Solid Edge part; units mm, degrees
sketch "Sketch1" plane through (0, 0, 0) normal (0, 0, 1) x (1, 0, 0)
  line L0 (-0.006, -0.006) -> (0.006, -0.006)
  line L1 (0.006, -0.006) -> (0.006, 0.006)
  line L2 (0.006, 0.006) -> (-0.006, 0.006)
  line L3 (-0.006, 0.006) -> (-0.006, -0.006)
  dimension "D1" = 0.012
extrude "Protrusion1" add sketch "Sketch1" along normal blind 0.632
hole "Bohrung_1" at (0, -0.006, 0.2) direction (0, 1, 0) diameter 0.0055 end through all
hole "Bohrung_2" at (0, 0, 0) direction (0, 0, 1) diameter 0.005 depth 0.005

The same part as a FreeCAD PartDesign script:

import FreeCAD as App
import Part
import Sketcher

doc = App.newDocument("Part")
body = doc.addObject("PartDesign::Body", "Body")

# Sketch on XY plane
sketch1 = body.newObject("Sketcher::SketchObject", "Sketch")
sketch1.AttachmentSupport = (doc.getObject("XY_Plane"), [""])
sketch1.MapMode = "FlatFace"
sketch1.addGeometry(Part.LineSegment(App.Vector(-0.006, 0.006, 0), App.Vector(-0.006, -0.006, 0)), False)
sketch1.addGeometry(Part.LineSegment(App.Vector(-0.006, -0.006, 0), App.Vector(0.006, -0.006, 0)), False)
sketch1.addGeometry(Part.LineSegment(App.Vector(0.006, -0.006, 0), App.Vector(0.006, 0.006, 0)), False)
sketch1.addGeometry(Part.LineSegment(App.Vector(0.006, 0.006, 0), App.Vector(-0.006, 0.006, 0)), False)
sketch1.addConstraint(Sketcher.Constraint("Coincident", 0, 2, 1, 1))
sketch1.addConstraint(Sketcher.Constraint("Coincident", 1, 2, 2, 1))
sketch1.addConstraint(Sketcher.Constraint("Coincident", 2, 2, 3, 1))
sketch1.addConstraint(Sketcher.Constraint("Coincident", 3, 2, 0, 1))
sketch1.addConstraint(Sketcher.Constraint("Vertical", 0))
sketch1.addConstraint(Sketcher.Constraint("Horizontal", 1))
sketch1.addConstraint(Sketcher.Constraint("Vertical", 2))
sketch1.addConstraint(Sketcher.Constraint("Horizontal", 3))
sketch1.addConstraint(Sketcher.Constraint("Symmetric", 0, 2, 2, 2, -1, 1))
sketch1.addConstraint(Sketcher.Constraint("Equal", 3, 0))
sketch1.addConstraint(Sketcher.Constraint("DistanceX", 0, 2, -1, 1, 0.006))
pad1 = body.newObject("PartDesign::Pad", "Pad")
pad1.Profile = sketch1
pad1.Length = 0.632

# Sketch on XZ plane
sketch2 = body.newObject("Sketcher::SketchObject", "Sketch001")
sketch2.AttachmentSupport = (doc.getObject("XZ_Plane"), [""])
sketch2.MapMode = "FlatFace"
sketch2.AttachmentOffset = App.Placement(App.Vector(0, 0, 0.006), App.Rotation())
sketch2.addGeometry(Part.Circle(App.Vector(0, 0.2, 0), App.Vector(0, 0, 1), 0.00275), False)
sketch2.addConstraint(Sketcher.Constraint("PointOnObject", 0, 3, -2))
sketch2.addConstraint(Sketcher.Constraint("Diameter", 0, 0.0055))
sketch2.addConstraint(Sketcher.Constraint("DistanceY", -1, 1, 0, 3, 0.2))
doc.recompute()
hole = body.newObject("PartDesign::Hole", "Hole")
hole.Profile = sketch2
hole.ThreadType = "None"
hole.Diameter = 0.0055
hole.DepthType = "ThroughAll"

# Sketch on XY plane
sketch3 = body.newObject("Sketcher::SketchObject", "Sketch002")
sketch3.AttachmentSupport = (doc.getObject("XY_Plane"), [""])
sketch3.MapMode = "FlatFace"
sketch3.addGeometry(Part.Circle(App.Vector(0, 0, 0), App.Vector(0, 0, 1), 0.0025), False)
sketch3.addConstraint(Sketcher.Constraint("Coincident", 0, 3, -1, 1))
sketch3.addConstraint(Sketcher.Constraint("Diameter", 0, 0.005))
doc.recompute()
hole2 = body.newObject("PartDesign::Hole", "Hole001")
hole2.Profile = sketch3
hole2.ThreadType = "None"
hole2.Diameter = 0.005
hole2.DepthType = "Dimension"
hole2.Depth = 0.005
hole2.DrillPoint = "Flat"
hole2.Reversed = True

doc.recompute()
